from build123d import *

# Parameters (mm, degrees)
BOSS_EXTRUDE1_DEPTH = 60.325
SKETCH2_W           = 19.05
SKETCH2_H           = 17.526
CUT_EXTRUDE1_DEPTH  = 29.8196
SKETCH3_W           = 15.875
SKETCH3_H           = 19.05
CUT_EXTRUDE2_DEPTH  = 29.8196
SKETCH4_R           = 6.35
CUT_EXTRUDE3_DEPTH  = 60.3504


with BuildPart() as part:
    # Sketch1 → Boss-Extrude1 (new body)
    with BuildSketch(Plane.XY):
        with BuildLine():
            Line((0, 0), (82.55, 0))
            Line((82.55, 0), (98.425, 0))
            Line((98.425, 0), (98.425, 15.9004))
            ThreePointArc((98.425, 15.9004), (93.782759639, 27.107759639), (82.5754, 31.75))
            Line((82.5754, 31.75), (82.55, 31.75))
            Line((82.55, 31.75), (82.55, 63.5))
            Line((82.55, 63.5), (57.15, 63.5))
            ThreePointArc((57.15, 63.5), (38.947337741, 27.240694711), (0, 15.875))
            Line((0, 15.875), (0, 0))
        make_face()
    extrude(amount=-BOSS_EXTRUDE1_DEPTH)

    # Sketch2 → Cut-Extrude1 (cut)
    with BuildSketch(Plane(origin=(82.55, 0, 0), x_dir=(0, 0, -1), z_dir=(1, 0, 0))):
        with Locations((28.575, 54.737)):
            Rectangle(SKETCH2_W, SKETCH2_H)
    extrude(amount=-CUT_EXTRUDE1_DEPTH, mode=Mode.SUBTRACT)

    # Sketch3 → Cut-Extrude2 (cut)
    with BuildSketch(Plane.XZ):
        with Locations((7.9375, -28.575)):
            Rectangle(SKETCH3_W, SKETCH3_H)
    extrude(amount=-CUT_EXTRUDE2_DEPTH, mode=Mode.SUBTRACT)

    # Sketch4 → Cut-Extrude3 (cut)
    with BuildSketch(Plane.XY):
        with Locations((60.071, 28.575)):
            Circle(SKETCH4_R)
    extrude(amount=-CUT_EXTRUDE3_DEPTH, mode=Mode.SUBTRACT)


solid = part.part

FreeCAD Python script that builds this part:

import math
import FreeCAD as App
import Part
import Sketcher
Q = App.Units.Quantity

doc = App.newDocument("Part")
body = doc.addObject("PartDesign::Body", "Body")

# Sketch on XY plane
sketch1 = body.newObject("Sketcher::SketchObject", "Sketch")
sketch1.AttachmentSupport = (doc.getObject("XY_Plane"), [""])
sketch1.MapMode = "FlatFace"
sketch1.addGeometry([
    Part.LineSegment(App.Vector(0, 0, 0), App.Vector(98.425, 0, 0)),  # 0
    Part.LineSegment(App.Vector(98.425, 0, 0), App.Vector(98.425, 15.9, 0)),  # 1
    Part.ArcOfCircle(Part.Circle(App.Vector(82.575, 15.9, 0), App.Vector(0, 0, 1), 15.85), math.radians(0), math.radians(90)),  # 2
    Part.LineSegment(App.Vector(82.575, 31.75, 0), App.Vector(82.55, 31.75, 0)),  # 3
    Part.LineSegment(App.Vector(82.55, 31.75, 0), App.Vector(82.55, 63.5, 0)),  # 4
    Part.LineSegment(App.Vector(82.55, 63.5, 0), App.Vector(57.15, 63.5, 0)),  # 5
    Part.ArcOfCircle(Part.Circle(App.Vector(6.427, 66.265, 0), App.Vector(0, 0, 1), 50.798), math.radians(-97), math.radians(-3)),  # 6
    Part.LineSegment(App.Vector(0, 15.875, 0), App.Vector(0, 0, 0)),  # 7
], False)
sketch1.addConstraint([
    Sketcher.Constraint("Coincident", 0, 2, 1, 1),
    Sketcher.Constraint("Tangent", 1, 2, 2, 1),
    Sketcher.Constraint("Tangent", 2, 2, 3, 1),
    Sketcher.Constraint("Coincident", 3, 2, 4, 1),
    Sketcher.Constraint("Coincident", 4, 2, 5, 1),
    Sketcher.Constraint("Coincident", 5, 2, 6, 2),
    Sketcher.Constraint("Coincident", 6, 1, 7, 1),
    Sketcher.Constraint("Coincident", 7, 2, 0, 1),
    Sketcher.Constraint("Horizontal", 0),
    Sketcher.Constraint("Vertical", 1),
    Sketcher.Constraint("Vertical", 4),
    Sketcher.Constraint("Horizontal", 5),
    Sketcher.Constraint("Vertical", 7),
    Sketcher.Constraint("Coincident", 7, 2, -1, 1),
    Sketcher.Constraint("DistanceX", 5, 2, 5, 1, Q("1 in")),
    Sketcher.Constraint("Radius", 2, Q("0.624 in")),
    Sketcher.Constraint("DistanceY", 4, 1, 4, 2, Q("1.25 in")),
    Sketcher.Constraint("DistanceY", -1, 1, 4, 2, Q("2.5 in")),
    Sketcher.Constraint("DistanceX", 0, 1, 0, 2, Q("3.875 in")),
    Sketcher.Constraint("DistanceX", 3, 2, 3, 1, Q("0.001 in")),
    Sketcher.Constraint("DistanceY", 7, 2, 7, 1, Q("0.625 in")),
    Sketcher.Constraint("DistanceX", -1, 1, 3, 2, Q("3.25 in")),
    Sketcher.Constraint("Radius", 6, 50.798142),
])
pad1 = body.newObject("PartDesign::Pad", "Pad")
pad1.Profile = sketch1
pad1.Length = Q("2.375 in")
pad1.Reversed = True

# Sketch on YZ plane
sketch2 = body.newObject("Sketcher::SketchObject", "Sketch001")
sketch2.AttachmentSupport = (doc.getObject("YZ_Plane"), [""])
sketch2.MapMode = "FlatFace"
sketch2.AttachmentOffset = App.Placement(App.Vector(0, 0, 3.25 * 25.4), App.Rotation())
sketch2.addGeometry([
    Part.LineSegment(App.Vector(64, -19, 0), App.Vector(46, -19, 0)),
    Part.LineSegment(App.Vector(46, -19, 0), App.Vector(46, -38, 0)),
    Part.LineSegment(App.Vector(46, -38, 0), App.Vector(64, -38, 0)),
    Part.LineSegment(App.Vector(64, -38, 0), App.Vector(64, -19, 0)),
], False)
sketch2.addConstraint([
    Sketcher.Constraint("Coincident", 0, 2, 1, 1),
    Sketcher.Constraint("Coincident", 1, 2, 2, 1),
    Sketcher.Constraint("Coincident", 2, 2, 3, 1),
    Sketcher.Constraint("Coincident", 3, 2, 0, 1),
    Sketcher.Constraint("Horizontal", 0),
    Sketcher.Constraint("Vertical", 1),
    Sketcher.Constraint("Horizontal", 2),
    Sketcher.Constraint("Vertical", 3),
    Sketcher.Constraint("DistanceX", 0, 2, 0, 1, Q("0.69 in")),
    Sketcher.Constraint("DistanceY", 1, 2, 1, 1, Q("0.75 in")),
    Sketcher.Constraint("DistanceY", 1, 2, -1, 1, Q("1.5 in")),
    Sketcher.Constraint("DistanceX", -1, 1, 2, 2, Q("2.5 in")),
])
pocket1 = body.newObject("PartDesign::Pocket", "Pocket")
pocket1.Profile = sketch2
pocket1.Length = Q("1.174 in")

# Sketch on XZ plane
sketch3 = body.newObject("Sketcher::SketchObject", "Sketch002")
sketch3.AttachmentSupport = (doc.getObject("XZ_Plane"), [""])
sketch3.MapMode = "FlatFace"
sketch3.addGeometry([
    Part.LineSegment(App.Vector(0, -19, 0), App.Vector(0, -38, 0)),
    Part.LineSegment(App.Vector(0, -38, 0), App.Vector(16, -38, 0)),
    Part.LineSegment(App.Vector(16, -38, 0), App.Vector(16, -19, 0)),
    Part.LineSegment(App.Vector(16, -19, 0), App.Vector(0, -19, 0)),
], False)
sketch3.addConstraint([
    Sketcher.Constraint("Coincident", 0, 2, 1, 1),
    Sketcher.Constraint("Coincident", 1, 2, 2, 1),
    Sketcher.Constraint("Coincident", 2, 2, 3, 1),
    Sketcher.Constraint("Coincident", 3, 2, 0, 1),
    Sketcher.Constraint("Vertical", 0),
    Sketcher.Constraint("Horizontal", 1),
    Sketcher.Constraint("Vertical", 2),
    Sketcher.Constraint("Horizontal", 3),
    Sketcher.Constraint("PointOnObject", 0, 2, -2),
    Sketcher.Constraint("DistanceY", 0, 2, 0, 1, Q("0.75 in")),
    Sketcher.Constraint("DistanceY", 0, 2, -1, 1, Q("1.5 in")),
    Sketcher.Constraint("DistanceX", 1, 1, 1, 2, Q("0.625 in")),
])
pocket2 = body.newObject("PartDesign::Pocket", "Pocket001")
pocket2.Profile = sketch3
pocket2.Length = Q("1.174 in")

# Sketch on XY plane
sketch4 = body.newObject("Sketcher::SketchObject", "Sketch003")
sketch4.AttachmentSupport = (doc.getObject("XY_Plane"), [""])
sketch4.MapMode = "FlatFace"
sketch4.addGeometry(Part.Circle(App.Vector(60, 29, 0), App.Vector(0, 0, 1), 6), False)
sketch4.addConstraint([
    Sketcher.Constraint("Diameter", 0, Q("0.5 in")),
    Sketcher.Constraint("DistanceX", -1, 1, 0, 3, Q("2.365 in")),
    Sketcher.Constraint("DistanceY", -1, 1, 0, 3, Q("1.125 in")),
])
pocket3 = body.newObject("PartDesign::Pocket", "Pocket002")
pocket3.Profile = sketch4
pocket3.Length = Q("2.376 in")

doc.recompute()
